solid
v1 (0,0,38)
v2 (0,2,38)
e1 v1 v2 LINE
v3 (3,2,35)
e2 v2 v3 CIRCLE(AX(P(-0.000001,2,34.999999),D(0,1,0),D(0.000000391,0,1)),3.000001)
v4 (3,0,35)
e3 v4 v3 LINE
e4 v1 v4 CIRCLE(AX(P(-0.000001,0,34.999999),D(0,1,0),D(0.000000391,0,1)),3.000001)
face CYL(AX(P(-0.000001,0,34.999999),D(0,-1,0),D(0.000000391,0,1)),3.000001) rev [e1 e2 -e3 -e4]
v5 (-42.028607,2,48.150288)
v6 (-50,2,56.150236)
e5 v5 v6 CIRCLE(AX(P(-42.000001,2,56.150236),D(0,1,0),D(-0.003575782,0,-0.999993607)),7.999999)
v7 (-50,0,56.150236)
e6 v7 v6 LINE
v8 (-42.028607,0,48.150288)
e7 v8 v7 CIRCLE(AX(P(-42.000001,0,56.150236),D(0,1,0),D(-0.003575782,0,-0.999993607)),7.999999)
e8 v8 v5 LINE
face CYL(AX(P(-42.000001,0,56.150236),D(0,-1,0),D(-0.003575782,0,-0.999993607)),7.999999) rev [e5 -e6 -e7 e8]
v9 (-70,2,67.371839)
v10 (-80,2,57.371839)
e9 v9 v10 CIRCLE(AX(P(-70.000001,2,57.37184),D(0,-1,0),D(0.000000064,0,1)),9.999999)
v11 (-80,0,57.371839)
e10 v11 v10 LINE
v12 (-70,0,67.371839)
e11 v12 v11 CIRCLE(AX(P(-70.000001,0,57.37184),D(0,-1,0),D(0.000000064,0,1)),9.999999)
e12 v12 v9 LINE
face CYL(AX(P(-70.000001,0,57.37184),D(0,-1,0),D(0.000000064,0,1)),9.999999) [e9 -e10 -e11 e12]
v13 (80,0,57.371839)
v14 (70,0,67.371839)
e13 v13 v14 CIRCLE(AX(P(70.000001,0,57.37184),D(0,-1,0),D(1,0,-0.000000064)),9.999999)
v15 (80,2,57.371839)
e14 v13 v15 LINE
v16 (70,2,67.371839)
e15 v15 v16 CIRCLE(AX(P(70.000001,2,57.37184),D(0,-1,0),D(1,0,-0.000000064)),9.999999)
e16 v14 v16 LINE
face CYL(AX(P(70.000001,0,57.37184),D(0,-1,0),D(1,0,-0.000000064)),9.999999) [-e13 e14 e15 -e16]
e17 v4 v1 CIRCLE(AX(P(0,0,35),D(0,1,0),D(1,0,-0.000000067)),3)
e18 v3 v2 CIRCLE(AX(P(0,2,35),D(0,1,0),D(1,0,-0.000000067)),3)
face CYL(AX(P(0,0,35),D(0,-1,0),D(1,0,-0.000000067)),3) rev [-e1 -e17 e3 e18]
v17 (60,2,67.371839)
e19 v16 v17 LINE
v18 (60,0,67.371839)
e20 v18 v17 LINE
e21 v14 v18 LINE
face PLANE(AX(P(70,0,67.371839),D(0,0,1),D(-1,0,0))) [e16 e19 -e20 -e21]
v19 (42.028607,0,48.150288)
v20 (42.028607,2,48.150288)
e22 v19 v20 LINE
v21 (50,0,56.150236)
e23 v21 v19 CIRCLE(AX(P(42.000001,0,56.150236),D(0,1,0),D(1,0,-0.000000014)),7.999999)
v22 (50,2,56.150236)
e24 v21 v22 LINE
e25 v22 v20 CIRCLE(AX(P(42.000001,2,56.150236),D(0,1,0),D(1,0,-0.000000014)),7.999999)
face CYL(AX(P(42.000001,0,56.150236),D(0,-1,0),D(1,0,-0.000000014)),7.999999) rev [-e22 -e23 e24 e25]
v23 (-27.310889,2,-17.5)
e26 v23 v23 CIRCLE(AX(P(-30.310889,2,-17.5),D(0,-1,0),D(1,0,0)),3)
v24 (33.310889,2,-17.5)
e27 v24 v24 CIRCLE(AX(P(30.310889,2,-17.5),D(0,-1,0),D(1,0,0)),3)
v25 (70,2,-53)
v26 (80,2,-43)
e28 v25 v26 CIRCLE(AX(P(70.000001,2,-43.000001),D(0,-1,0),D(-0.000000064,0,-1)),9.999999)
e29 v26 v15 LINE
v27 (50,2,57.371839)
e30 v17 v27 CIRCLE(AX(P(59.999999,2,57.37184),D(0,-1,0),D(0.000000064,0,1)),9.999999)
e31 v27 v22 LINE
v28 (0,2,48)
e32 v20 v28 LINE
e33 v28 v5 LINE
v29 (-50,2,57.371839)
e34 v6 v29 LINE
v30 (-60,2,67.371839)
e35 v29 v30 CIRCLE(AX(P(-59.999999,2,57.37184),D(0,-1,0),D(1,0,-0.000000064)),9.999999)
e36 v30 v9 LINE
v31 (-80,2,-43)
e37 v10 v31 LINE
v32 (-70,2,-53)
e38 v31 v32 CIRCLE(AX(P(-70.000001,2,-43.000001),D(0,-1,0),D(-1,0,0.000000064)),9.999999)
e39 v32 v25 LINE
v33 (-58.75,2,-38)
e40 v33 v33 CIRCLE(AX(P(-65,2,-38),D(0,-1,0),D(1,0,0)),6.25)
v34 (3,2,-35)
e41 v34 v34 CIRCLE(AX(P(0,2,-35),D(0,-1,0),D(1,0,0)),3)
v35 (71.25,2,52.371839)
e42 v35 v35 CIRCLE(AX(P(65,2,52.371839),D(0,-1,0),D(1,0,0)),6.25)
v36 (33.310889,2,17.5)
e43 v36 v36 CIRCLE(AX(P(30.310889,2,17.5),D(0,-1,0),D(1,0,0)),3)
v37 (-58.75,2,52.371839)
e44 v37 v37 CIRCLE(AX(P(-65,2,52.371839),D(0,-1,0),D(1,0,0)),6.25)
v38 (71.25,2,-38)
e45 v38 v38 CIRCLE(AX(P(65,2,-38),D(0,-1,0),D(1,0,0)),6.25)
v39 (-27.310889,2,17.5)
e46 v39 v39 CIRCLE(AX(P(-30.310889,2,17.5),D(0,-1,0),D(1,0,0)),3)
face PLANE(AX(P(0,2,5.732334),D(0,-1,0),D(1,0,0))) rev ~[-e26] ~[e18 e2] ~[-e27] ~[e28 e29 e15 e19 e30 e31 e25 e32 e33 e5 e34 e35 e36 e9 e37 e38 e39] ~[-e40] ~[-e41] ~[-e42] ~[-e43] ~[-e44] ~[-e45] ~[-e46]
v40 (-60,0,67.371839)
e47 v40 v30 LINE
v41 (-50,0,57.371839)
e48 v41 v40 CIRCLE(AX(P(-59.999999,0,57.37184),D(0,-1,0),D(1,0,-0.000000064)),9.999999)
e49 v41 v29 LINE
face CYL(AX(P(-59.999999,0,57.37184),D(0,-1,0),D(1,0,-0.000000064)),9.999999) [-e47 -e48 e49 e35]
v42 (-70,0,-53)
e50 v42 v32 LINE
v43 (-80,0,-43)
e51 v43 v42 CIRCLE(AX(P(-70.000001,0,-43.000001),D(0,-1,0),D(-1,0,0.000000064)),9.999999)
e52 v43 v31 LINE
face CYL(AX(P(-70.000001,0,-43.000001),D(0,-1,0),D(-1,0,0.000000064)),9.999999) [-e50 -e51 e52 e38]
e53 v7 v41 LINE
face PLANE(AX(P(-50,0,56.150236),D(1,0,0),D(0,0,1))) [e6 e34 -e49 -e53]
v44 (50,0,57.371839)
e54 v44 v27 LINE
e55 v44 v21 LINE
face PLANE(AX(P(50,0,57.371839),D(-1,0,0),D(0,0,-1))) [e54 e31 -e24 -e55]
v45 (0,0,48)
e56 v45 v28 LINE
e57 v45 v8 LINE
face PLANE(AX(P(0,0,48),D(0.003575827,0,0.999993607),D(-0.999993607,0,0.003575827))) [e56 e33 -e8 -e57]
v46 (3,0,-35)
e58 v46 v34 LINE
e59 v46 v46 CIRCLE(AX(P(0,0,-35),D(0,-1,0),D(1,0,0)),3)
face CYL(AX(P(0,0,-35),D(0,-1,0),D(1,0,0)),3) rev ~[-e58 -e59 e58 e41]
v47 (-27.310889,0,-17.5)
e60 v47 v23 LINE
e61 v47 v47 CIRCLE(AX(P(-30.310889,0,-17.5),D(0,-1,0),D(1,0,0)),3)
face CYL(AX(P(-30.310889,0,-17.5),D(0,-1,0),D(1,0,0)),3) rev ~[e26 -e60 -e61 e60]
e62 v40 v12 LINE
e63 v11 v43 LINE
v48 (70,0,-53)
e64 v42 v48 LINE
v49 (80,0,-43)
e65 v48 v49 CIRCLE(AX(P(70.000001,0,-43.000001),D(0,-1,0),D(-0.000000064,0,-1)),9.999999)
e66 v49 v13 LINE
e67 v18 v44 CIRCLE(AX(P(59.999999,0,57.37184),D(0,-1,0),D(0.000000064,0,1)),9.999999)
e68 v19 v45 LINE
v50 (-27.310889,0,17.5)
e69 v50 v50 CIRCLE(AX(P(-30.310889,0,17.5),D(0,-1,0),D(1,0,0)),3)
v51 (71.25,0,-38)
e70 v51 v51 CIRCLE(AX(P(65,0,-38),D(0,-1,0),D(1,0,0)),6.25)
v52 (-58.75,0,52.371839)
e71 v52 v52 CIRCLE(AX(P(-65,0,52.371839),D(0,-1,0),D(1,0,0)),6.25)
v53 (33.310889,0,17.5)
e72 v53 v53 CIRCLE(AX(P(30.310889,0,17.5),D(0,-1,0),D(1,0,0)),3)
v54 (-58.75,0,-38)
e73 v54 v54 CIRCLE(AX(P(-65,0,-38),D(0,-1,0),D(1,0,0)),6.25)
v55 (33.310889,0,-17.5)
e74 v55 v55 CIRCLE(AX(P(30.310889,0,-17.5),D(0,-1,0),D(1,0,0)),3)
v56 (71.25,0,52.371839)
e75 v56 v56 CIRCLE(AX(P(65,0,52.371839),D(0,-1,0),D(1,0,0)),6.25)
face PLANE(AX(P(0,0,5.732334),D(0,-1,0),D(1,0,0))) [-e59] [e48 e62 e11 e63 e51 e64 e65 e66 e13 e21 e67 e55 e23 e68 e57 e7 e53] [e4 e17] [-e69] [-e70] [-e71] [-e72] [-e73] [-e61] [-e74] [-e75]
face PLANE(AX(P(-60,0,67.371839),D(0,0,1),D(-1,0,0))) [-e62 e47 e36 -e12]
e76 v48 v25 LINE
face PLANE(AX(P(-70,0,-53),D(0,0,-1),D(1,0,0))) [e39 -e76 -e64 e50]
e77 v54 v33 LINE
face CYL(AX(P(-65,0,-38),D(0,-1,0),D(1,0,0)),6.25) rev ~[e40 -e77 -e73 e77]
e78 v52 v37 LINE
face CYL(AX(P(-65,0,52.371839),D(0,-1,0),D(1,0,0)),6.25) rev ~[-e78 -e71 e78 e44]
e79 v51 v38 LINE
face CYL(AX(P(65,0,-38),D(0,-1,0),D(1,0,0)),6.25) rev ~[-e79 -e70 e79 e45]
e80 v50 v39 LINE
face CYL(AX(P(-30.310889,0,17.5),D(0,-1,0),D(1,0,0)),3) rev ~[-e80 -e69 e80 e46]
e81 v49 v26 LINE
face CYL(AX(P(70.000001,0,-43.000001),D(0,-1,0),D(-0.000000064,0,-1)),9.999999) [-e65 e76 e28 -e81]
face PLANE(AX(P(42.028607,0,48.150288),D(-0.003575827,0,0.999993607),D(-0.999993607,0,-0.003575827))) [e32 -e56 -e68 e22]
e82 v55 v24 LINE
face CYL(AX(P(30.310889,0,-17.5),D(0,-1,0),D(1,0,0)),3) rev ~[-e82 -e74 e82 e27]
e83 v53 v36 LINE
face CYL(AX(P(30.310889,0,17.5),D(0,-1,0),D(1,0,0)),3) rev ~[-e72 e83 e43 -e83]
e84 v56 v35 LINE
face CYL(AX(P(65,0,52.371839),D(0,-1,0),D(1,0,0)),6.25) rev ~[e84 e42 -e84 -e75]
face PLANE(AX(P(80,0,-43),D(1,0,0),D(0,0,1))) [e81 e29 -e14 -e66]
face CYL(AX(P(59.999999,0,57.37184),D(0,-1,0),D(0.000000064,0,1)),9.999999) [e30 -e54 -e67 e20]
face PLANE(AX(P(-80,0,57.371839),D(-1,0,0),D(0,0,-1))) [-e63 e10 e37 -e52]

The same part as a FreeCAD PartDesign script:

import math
import FreeCAD as App
import Part
import Sketcher

V = App.Vector

doc = App.newDocument("Part")
body = doc.addObject("PartDesign::Body", "Body")

sketch1 = body.newObject("Sketcher::SketchObject", "Sketch")
sketch1.AttachmentSupport = (doc.getObject("XZ_Plane"), [""])
sketch1.MapMode = "FlatFace"
sketch1.addGeometry([
    Part.LineSegment(V(-60, 67.4, 0), V(-70, 67.4, 0)),
    Part.ArcOfCircle(Part.Circle(V(-70, 57.4, 0), V(0, 0, 1), 10), math.radians(90), math.radians(180)),
    Part.LineSegment(V(-80, 57.4, 0), V(-80, -43, 0)),
    Part.ArcOfCircle(Part.Circle(V(-70, -43, 0), V(0, 0, 1), 10), math.radians(180), math.radians(270)),
    Part.LineSegment(V(-70, -53, 0), V(70, -53, 0)),
    Part.ArcOfCircle(Part.Circle(V(70, -43, 0), V(0, 0, 1), 10), math.radians(-90), math.radians(0)),
    Part.LineSegment(V(80, -43, 0), V(80, 57.4, 0)),
    Part.ArcOfCircle(Part.Circle(V(70, 57.4, 0), V(0, 0, 1), 10), math.radians(0), math.radians(90)),
    Part.LineSegment(V(70, 67.4, 0), V(60, 67.4, 0)),
    Part.ArcOfCircle(Part.Circle(V(60, 57.4, 0), V(0, 0, 1), 10), math.radians(90), math.radians(180)),
    Part.LineSegment(V(50, 57.4, 0), V(50, 56.2, 0)),
    Part.ArcOfCircle(Part.Circle(V(42, 56.2, 0), V(0, 0, 1), 8), math.radians(-90), math.radians(0)),
    Part.LineSegment(V(42, 48.2, 0), V(0, 48, 0)),
    Part.LineSegment(V(0, 48, 0), V(-42, 48.2, 0)),
    Part.ArcOfCircle(Part.Circle(V(-42, 56.2, 0), V(0, 0, 1), 8), math.radians(-180), math.radians(-90)),
    Part.LineSegment(V(-50, 56.2, 0), V(-50, 57.4, 0)),
    Part.ArcOfCircle(Part.Circle(V(-60, 57.4, 0), V(0, 0, 1), 10), math.radians(0), math.radians(90)),
    Part.Circle(V(-65, -38, 0), V(0, 0, 1), 6.2),
    Part.Circle(V(-30.3, -17.5, 0), V(0, 0, 1), 3),
    Part.Circle(V(0, -35, 0), V(0, 0, 1), 3),
    Part.Circle(V(65, -38, 0), V(0, 0, 1), 6.2),
    Part.Circle(V(30.3, -17.5, 0), V(0, 0, 1), 3),
    Part.Circle(V(-30.3, 17.5, 0), V(0, 0, 1), 3),
    Part.Circle(V(-65, 52.4, 0), V(0, 0, 1), 6.2),
    Part.Circle(V(30.3, 17.5, 0), V(0, 0, 1), 3),
    Part.ArcOfCircle(Part.Circle(V(0, 35, 0), V(0, 0, 1), 3), math.radians(0), math.radians(90)),
    Part.ArcOfCircle(Part.Circle(V(0, 35, 0), V(0, 0, 1), 3), math.radians(90), math.radians(360)),
    Part.Circle(V(65, 52.4, 0), V(0, 0, 1), 6.2),
], False)
sketch1.addConstraint([
    Sketcher.Constraint("Tangent", 0, 2, 1, 1),
    Sketcher.Constraint("Tangent", 1, 2, 2, 1),
    Sketcher.Constraint("Tangent", 2, 2, 3, 1),
    Sketcher.Constraint("Tangent", 3, 2, 4, 1),
    Sketcher.Constraint("Tangent", 4, 2, 5, 1),
    Sketcher.Constraint("Tangent", 5, 2, 6, 1),
    Sketcher.Constraint("Tangent", 6, 2, 7, 1),
    Sketcher.Constraint("Tangent", 7, 2, 8, 1),
    Sketcher.Constraint("Tangent", 8, 2, 9, 1),
    Sketcher.Constraint("Tangent", 9, 2, 10, 1),
    Sketcher.Constraint("Tangent", 10, 2, 11, 2),
    Sketcher.Constraint("Tangent", 11, 1, 12, 1),
    Sketcher.Constraint("Coincident", 12, 2, 13, 1),
    Sketcher.Constraint("Tangent", 13, 2, 14, 2),
    Sketcher.Constraint("Tangent", 14, 1, 15, 1),
    Sketcher.Constraint("Tangent", 15, 2, 16, 1),
    Sketcher.Constraint("Tangent", 16, 2, 0, 1),
    Sketcher.Constraint("Tangent", 25, 1, 26, 2),
    Sketcher.Constraint("Coincident", 26, 1, 25, 2),
    Sketcher.Constraint("Horizontal", 0),
    Sketcher.Constraint("Vertical", 2),
    Sketcher.Constraint("Horizontal", 4),
    Sketcher.Constraint("Vertical", 6),
    Sketcher.Constraint("Horizontal", 8),
    Sketcher.Constraint("Vertical", 10),
    Sketcher.Constraint("Vertical", 15),
    Sketcher.Constraint("Equal", 1, 3),
    Sketcher.Constraint("Equal", 3, 5),
    Sketcher.Constraint("Equal", 5, 7),
    Sketcher.Constraint("Equal", 7, 9),
    Sketcher.Constraint("Equal", 11, 14),
    Sketcher.Constraint("Equal", 9, 16),
    Sketcher.Constraint("Equal", 18, 19),
    Sketcher.Constraint("Equal", 17, 20),
    Sketcher.Constraint("Equal", 19, 21),
    Sketcher.Constraint("Equal", 21, 22),
    Sketcher.Constraint("Equal", 20, 23),
    Sketcher.Constraint("Equal", 22, 24),
    Sketcher.Constraint("Equal", 24, 25),
    Sketcher.Constraint("Equal", 23, 27),
    Sketcher.Constraint("Symmetric", 21, 3, 22, 3, -1, 1),
    Sketcher.Constraint("Symmetric", 18, 3, 24, 3, -1, 1),
    Sketcher.Constraint("Symmetric", 19, 3, 25, 3, -1, 1),
    Sketcher.Constraint("Symmetric", 1, 3, 7, 3, -2),
    Sketcher.Constraint("Symmetric", 11, 3, 14, 3, -2),
    Sketcher.Constraint("Symmetric", 17, 3, 20, 3, -2),
    Sketcher.Constraint("Symmetric", 18, 3, 21, 3, -2),
    Sketcher.Constraint("Symmetric", 23, 3, 27, 3, -2),
    Sketcher.Constraint("PointOnObject", 19, 3, -2),
    Sketcher.Constraint("PointOnObject", 12, 2, -2),
    Sketcher.Constraint("PointOnObject", 26, 1, -2),
    Sketcher.Constraint("Horizontal", 26, 3, 25, 1),
    Sketcher.Constraint("Vertical", 17, 3, 23, 3),
    Sketcher.Constraint("Diameter", 18, 6.0),
    Sketcher.Constraint("Radius", 1, 9.999999),
    Sketcher.Constraint("Radius", 11, 7.999999),
    Sketcher.Constraint("Diameter", 17, 12.5),
    Sketcher.Constraint("DistanceX", 0, 2, 0, 1, 10.0),
    Sketcher.Constraint("DistanceX", 4, 1, 4, 2, 140.0),
    Sketcher.Constraint("DistanceY", 3, 3, -1, 1, 43.000001),
    Sketcher.Constraint("DistanceX", 17, 3, -1, 1, 65.0),
    Sketcher.Constraint("DistanceY", 17, 3, -1, 1, 38.0),
    Sketcher.Constraint("DistanceY", 19, 3, -1, 1, 35.0),
    Sketcher.Constraint("DistanceY", -1, 1, 12, 2, 48.0),
    Sketcher.Constraint("DistanceY", 18, 3, 22, 3, 35.0),
    Sketcher.Constraint("DistanceY", 23, 3, 1, 3, 5.000001),
    Sketcher.Constraint("DistanceY", 2, 2, 2, 1, 100.371839),
    Sketcher.Constraint("DistanceY", 10, 2, 10, 1, 1.221603),
    Sketcher.Constraint("DistanceX", 18, 3, -1, 1, 30.310889),
])
pad1 = body.newObject("PartDesign::Pad", "Pad")
pad1.Profile = sketch1
pad1.Length = 2
pad1.Reversed = True

doc.recompute()
